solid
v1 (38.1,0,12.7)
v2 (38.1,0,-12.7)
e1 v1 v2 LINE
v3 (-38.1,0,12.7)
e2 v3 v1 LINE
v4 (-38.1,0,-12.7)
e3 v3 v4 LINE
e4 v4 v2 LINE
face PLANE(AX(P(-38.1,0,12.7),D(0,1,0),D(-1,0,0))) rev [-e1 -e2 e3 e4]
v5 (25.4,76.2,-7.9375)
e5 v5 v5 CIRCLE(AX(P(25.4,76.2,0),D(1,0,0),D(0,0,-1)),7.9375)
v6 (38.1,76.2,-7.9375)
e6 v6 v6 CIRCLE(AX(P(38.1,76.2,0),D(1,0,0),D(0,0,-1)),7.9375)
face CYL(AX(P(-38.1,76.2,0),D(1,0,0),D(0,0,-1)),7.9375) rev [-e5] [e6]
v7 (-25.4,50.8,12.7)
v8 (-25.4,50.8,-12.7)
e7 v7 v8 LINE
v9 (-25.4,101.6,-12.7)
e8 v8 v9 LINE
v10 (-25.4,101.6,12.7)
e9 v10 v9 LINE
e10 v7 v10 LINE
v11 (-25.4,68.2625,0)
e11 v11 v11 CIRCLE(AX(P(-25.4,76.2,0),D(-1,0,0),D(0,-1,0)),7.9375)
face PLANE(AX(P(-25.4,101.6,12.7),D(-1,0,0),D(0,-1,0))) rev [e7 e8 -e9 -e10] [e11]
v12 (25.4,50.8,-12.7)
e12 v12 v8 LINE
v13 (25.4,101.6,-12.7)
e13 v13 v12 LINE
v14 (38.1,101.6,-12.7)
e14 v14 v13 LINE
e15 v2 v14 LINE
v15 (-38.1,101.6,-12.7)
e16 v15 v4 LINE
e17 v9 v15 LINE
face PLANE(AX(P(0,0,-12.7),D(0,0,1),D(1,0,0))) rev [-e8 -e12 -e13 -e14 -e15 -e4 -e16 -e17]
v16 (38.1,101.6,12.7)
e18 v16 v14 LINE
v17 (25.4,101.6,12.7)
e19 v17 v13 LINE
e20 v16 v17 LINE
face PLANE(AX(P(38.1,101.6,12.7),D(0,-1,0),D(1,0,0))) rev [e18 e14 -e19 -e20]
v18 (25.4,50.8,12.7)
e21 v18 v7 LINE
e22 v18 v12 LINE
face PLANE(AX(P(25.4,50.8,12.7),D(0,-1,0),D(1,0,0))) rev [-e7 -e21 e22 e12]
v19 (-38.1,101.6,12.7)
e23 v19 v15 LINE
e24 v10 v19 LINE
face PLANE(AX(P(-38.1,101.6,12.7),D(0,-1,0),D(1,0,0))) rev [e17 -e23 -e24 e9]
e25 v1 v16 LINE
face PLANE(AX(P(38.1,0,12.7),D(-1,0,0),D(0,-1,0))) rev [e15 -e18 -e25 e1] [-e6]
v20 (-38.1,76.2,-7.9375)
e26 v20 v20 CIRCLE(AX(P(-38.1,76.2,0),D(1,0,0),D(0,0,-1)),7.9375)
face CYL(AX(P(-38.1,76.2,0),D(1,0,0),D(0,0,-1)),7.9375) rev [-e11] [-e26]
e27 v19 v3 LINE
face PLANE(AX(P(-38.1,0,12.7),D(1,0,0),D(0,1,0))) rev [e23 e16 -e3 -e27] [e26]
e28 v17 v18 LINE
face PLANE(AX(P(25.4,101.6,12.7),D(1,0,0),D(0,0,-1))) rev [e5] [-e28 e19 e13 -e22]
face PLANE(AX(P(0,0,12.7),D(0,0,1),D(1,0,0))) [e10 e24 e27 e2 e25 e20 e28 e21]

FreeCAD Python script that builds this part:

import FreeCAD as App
import Part
import Sketcher
Q = App.Units.Quantity


def add_polygon(sketch, points):
    """Adds a closed chain of lines whose ends are joined by coincident constraints."""
    first, n = sketch.GeometryCount, len(points)
    for a, b in zip(points, points[1:] + points[:1]):
        sketch.addGeometry(Part.LineSegment(App.Vector(*a, 0), App.Vector(*b, 0)), False)
    for i in range(n):
        sketch.addConstraint(Sketcher.Constraint("Coincident", first + i, 2, first + (i + 1) % n, 1))

doc = App.newDocument("Part")
body = doc.addObject("PartDesign::Body", "Body")

sketch1 = body.newObject("Sketcher::SketchObject", "Sketch")
sketch1.AttachmentSupport = (doc.getObject("XY_Plane"), [""])
sketch1.MapMode = "FlatFace"
add_polygon(sketch1, [(-38, 0), (38, 0), (38, 102), (25, 102), (25, 51), (-25, 51), (-25, 102), (-38, 102)])
sketch1.addConstraint([
    Sketcher.Constraint("Horizontal", 0),
    Sketcher.Constraint("Vertical", 1),
    Sketcher.Constraint("Horizontal", 2),
    Sketcher.Constraint("Vertical", 3),
    Sketcher.Constraint("Horizontal", 4),
    Sketcher.Constraint("Vertical", 5),
    Sketcher.Constraint("Horizontal", 6),
    Sketcher.Constraint("Vertical", 7),
    Sketcher.Constraint("Symmetric", 0, 2, 7, 2, -1, 1),
    Sketcher.Constraint("Symmetric", 2, 2, 5, 2, -2),
    Sketcher.Constraint("Equal", 4, 3),
    Sketcher.Constraint("DistanceX", 0, 1, 0, 2, Q("3 in")),
    Sketcher.Constraint("DistanceX", 4, 2, 4, 1, Q("2 in")),
    Sketcher.Constraint("DistanceY", 1, 1, 1, 2, Q("4 in")),
])
pad1 = body.newObject("PartDesign::Pad", "Pad")
pad1.Profile = sketch1
pad1.Length = Q("1 in")
pad1.Midplane = True

sketch2 = body.newObject("Sketcher::SketchObject", "Sketch001")
sketch2.AttachmentSupport = (doc.getObject("YZ_Plane"), [""])
sketch2.MapMode = "FlatFace"
sketch2.addGeometry(Part.Circle(App.Vector(76, 0, 0), App.Vector(0, 0, 1), 8), False)
sketch2.addConstraint([
    Sketcher.Constraint("PointOnObject", 0, 3, -1),
    Sketcher.Constraint("Diameter", 0, Q("0.625 in")),
    Sketcher.Constraint("DistanceX", -1, 1, 0, 3, Q("3 in")),
])
pocket1 = body.newObject("PartDesign::Pocket", "Pocket")
pocket1.Profile = sketch2
pocket1.Type = "ThroughAll"
pocket1.Midplane = True

doc.recompute()
